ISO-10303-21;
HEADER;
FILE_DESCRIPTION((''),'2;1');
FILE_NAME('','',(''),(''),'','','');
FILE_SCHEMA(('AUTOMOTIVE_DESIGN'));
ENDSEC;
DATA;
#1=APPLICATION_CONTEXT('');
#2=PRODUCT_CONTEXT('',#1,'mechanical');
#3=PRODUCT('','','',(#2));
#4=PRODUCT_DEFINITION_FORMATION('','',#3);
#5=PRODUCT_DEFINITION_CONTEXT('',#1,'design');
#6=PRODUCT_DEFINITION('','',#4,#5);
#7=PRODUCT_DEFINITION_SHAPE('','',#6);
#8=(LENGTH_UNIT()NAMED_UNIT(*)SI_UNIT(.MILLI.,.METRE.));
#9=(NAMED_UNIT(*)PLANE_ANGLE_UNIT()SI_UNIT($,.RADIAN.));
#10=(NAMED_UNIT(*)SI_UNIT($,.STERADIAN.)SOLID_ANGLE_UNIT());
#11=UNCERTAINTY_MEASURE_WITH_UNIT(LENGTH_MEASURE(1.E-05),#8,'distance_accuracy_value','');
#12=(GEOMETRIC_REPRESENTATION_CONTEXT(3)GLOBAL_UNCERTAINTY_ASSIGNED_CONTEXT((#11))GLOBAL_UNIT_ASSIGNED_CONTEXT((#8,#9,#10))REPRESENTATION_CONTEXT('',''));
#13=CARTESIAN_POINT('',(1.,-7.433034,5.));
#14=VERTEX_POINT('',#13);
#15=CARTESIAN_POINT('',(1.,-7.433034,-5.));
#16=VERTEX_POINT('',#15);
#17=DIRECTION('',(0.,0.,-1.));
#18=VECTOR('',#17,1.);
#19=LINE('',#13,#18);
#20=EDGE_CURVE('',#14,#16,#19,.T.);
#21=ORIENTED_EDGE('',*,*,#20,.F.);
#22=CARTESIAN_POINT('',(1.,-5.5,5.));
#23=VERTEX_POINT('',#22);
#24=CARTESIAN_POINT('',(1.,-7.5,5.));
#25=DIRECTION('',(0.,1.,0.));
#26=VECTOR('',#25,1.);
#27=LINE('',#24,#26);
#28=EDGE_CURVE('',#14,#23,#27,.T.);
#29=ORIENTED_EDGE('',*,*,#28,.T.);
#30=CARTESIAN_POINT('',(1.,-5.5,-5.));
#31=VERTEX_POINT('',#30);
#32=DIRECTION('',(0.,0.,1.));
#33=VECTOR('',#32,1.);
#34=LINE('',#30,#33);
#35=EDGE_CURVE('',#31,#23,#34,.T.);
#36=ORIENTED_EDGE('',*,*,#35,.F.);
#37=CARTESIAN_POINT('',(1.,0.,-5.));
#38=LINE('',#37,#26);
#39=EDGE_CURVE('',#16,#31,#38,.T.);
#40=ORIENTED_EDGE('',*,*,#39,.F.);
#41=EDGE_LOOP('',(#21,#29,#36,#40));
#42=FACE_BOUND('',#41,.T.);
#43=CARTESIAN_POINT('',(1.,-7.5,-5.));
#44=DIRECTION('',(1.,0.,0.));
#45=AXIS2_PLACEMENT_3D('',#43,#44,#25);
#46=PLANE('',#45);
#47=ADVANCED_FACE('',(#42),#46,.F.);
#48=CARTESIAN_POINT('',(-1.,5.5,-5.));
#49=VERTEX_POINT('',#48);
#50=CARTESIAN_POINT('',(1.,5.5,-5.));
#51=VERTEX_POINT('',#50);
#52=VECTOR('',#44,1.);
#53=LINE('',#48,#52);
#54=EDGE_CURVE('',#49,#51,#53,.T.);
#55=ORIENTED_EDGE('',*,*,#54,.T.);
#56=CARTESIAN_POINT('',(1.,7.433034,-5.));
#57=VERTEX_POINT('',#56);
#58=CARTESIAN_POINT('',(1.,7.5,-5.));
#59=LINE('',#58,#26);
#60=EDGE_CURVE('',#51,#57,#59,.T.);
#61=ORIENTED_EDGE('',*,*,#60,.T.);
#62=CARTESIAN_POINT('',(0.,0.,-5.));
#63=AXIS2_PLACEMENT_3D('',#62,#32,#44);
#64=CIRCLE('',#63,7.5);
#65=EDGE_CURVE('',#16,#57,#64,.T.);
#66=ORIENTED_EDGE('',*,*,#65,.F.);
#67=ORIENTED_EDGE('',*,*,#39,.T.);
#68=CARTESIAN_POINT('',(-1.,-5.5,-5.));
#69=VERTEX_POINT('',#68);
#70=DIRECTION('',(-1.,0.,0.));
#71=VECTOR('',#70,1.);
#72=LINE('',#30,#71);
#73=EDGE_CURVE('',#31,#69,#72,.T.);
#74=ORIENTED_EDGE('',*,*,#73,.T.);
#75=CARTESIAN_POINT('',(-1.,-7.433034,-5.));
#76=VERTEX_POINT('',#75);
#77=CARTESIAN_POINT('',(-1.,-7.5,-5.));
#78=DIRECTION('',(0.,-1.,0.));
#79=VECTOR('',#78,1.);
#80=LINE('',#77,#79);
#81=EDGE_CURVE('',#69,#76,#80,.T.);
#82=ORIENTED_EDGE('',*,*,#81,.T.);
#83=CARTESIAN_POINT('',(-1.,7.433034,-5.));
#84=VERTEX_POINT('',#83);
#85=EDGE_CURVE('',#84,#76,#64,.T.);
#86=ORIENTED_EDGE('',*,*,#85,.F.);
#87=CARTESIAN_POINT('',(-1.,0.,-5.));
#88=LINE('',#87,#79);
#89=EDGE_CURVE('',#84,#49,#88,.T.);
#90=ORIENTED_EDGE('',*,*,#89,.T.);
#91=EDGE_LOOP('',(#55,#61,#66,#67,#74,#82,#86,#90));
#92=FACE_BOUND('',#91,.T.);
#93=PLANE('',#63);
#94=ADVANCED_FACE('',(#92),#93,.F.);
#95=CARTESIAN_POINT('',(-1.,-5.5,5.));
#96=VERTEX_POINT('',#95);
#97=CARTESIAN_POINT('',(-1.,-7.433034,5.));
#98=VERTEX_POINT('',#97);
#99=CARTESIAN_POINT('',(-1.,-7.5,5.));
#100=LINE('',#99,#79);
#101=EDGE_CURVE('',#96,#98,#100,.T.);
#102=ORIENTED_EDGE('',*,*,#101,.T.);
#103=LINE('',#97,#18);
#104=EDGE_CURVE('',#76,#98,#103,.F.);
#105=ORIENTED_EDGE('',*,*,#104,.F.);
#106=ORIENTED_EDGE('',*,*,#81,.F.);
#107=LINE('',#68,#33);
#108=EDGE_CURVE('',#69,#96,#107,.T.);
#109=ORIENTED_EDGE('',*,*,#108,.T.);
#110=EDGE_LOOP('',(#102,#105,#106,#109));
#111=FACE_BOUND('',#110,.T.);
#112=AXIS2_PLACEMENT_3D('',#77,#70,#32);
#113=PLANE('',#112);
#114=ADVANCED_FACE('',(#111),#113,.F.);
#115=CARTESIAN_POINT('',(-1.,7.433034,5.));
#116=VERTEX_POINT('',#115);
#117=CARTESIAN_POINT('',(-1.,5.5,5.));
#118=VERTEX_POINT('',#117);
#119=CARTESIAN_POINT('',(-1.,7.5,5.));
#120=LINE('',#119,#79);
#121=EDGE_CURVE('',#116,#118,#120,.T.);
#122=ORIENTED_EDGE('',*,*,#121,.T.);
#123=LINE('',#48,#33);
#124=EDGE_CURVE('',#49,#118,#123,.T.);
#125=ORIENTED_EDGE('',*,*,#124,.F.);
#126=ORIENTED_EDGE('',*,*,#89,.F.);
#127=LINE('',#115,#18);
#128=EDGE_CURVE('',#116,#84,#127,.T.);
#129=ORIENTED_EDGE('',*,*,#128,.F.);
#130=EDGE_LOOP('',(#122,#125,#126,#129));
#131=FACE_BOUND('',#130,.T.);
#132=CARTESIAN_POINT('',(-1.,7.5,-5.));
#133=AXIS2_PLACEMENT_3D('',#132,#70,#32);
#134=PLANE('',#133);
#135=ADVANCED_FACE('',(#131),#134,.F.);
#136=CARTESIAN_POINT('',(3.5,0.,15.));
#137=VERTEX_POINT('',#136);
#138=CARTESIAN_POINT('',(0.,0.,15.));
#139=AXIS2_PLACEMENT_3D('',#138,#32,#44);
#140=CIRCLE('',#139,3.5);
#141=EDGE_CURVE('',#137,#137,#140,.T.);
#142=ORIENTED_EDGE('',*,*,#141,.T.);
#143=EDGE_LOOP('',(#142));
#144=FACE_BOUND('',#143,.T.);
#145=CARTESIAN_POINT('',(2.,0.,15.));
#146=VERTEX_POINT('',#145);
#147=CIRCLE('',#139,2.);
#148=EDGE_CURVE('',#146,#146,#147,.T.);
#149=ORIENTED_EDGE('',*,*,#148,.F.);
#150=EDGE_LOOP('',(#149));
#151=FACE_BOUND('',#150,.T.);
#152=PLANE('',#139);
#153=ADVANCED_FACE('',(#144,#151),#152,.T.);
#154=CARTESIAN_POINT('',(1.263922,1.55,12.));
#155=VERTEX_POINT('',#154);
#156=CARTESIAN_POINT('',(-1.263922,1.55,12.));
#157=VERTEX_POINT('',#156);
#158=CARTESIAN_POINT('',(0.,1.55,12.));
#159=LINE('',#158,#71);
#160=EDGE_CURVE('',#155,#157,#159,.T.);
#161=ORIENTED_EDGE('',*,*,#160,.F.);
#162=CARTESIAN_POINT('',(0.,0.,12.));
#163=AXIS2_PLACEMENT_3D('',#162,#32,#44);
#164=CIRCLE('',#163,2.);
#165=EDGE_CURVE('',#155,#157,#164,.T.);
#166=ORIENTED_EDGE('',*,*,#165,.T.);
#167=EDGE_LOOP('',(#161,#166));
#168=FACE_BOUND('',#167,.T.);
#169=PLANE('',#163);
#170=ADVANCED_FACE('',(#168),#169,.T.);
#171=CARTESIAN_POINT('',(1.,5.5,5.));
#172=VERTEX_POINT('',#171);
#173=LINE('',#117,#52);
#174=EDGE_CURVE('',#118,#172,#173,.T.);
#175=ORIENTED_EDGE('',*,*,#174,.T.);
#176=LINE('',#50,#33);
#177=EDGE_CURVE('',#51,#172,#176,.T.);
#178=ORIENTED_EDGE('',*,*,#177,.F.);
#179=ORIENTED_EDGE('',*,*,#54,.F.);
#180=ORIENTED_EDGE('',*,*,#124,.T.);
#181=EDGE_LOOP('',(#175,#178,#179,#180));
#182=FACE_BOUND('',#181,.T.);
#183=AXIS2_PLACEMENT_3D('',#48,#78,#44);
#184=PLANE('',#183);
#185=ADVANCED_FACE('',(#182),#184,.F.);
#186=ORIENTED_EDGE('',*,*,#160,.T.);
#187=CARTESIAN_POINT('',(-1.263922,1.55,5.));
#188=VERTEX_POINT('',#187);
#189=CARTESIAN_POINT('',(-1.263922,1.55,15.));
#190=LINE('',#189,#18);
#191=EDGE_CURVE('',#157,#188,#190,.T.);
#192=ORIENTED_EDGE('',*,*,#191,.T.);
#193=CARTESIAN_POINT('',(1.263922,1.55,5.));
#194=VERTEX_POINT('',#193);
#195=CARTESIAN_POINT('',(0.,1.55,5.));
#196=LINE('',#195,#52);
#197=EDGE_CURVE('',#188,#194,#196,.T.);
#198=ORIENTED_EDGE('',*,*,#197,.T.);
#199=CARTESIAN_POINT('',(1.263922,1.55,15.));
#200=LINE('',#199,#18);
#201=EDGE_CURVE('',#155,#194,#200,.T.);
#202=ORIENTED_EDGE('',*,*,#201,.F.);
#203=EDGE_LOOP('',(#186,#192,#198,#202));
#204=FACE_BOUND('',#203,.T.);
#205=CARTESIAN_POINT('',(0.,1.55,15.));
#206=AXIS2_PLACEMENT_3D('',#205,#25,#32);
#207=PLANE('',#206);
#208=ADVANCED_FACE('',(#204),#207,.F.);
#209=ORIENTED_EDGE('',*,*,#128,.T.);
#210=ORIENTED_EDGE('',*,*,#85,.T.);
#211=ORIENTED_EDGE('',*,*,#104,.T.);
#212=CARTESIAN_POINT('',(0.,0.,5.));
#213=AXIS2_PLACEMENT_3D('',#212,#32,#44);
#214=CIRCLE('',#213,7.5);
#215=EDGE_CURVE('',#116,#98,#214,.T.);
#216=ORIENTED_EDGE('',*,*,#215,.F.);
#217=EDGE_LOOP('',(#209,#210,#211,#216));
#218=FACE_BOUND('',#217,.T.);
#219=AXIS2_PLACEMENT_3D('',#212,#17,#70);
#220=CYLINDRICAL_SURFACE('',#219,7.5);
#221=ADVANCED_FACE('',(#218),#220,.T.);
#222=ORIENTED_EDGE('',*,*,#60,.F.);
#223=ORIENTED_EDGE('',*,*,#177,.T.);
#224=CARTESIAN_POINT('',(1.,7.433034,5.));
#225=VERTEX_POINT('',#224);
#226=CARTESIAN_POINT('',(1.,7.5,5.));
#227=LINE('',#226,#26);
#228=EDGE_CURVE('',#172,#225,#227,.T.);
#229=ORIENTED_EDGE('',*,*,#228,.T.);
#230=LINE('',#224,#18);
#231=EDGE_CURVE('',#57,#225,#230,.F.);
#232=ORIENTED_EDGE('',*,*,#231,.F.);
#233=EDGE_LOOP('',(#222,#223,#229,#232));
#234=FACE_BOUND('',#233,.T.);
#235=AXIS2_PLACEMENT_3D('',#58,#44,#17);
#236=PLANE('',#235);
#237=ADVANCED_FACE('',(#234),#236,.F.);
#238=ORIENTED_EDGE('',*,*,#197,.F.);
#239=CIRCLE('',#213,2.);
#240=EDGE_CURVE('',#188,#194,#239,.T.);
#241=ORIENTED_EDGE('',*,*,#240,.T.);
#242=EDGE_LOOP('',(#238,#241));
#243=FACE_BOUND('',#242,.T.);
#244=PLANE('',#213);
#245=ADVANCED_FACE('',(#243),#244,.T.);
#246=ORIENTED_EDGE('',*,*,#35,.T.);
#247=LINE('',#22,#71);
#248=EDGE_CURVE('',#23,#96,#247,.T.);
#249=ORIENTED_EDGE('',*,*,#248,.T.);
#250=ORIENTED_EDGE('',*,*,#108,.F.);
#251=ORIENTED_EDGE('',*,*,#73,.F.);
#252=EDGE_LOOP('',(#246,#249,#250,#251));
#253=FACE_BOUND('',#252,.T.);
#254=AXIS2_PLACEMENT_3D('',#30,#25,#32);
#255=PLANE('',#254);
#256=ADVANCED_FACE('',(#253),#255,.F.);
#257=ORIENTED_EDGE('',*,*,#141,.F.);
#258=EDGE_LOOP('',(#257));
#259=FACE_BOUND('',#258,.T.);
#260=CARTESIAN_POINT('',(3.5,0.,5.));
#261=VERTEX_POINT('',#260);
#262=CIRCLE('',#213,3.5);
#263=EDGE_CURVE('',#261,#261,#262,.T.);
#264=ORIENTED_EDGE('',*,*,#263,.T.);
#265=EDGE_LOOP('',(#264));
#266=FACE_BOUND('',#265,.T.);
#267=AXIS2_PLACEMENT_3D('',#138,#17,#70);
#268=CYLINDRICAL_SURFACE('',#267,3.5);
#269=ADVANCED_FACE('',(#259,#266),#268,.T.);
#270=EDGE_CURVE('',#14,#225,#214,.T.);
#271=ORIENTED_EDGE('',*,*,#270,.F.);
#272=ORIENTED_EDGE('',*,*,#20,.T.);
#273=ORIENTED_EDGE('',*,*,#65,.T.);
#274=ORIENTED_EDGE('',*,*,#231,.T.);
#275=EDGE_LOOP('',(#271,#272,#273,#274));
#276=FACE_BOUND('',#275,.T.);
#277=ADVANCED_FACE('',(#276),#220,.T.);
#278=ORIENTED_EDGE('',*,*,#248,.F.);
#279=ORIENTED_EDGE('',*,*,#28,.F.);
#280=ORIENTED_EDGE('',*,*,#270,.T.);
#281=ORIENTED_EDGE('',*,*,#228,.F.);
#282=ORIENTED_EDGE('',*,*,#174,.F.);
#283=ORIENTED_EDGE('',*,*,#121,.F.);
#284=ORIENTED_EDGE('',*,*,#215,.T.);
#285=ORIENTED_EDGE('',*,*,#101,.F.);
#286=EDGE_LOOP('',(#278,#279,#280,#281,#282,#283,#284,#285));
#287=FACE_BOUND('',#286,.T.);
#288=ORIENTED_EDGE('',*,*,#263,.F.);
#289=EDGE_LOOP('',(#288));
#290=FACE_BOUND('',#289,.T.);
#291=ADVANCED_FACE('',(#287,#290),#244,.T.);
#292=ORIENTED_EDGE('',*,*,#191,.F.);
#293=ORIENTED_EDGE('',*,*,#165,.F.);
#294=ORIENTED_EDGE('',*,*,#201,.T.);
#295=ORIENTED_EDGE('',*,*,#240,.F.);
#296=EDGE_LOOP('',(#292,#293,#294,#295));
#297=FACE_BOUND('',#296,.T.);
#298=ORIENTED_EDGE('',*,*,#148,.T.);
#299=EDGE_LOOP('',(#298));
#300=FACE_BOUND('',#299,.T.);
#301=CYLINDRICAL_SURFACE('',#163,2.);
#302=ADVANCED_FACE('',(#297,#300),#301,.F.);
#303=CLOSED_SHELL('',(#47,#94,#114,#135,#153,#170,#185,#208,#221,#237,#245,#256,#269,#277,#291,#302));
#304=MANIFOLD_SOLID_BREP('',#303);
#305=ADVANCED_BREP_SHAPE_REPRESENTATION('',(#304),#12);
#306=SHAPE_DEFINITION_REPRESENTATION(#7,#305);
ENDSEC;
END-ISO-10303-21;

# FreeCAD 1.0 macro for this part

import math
import FreeCAD as App
import Part
import Sketcher
from FreeCAD import Vector
Q = App.Units.Quantity

doc = App.newDocument("Part")
body = doc.addObject("PartDesign::Body", "Body")

sketch1 = body.newObject("Sketcher::SketchObject", "Sketch")
sketch1.AttachmentSupport = (doc.getObject("XY_Plane"), [""])
sketch1.MapMode = "FlatFace"
sketch1.addGeometry(Part.Circle(Vector(0, 0, 0), Vector(0, 0, 1), 8), False)
sketch1.addConstraint(Sketcher.Constraint("Coincident", 0, 3, -1, 1))
sketch1.addConstraint(Sketcher.Constraint("Diameter", 0, Q("15 mm")))
pad1 = body.newObject("PartDesign::Pad", "Pad")
pad1.Profile = sketch1
pad1.Length = 10
pad1.Midplane = True

sketch2 = body.newObject("Sketcher::SketchObject", "Sketch001")
sketch2.AttachmentSupport = (doc.getObject("XY_Plane"), [""])
sketch2.MapMode = "FlatFace"
sketch2.AttachmentOffset = App.Placement(Vector(0, 0, 5), App.Rotation())
sketch2.addGeometry(Part.Circle(Vector(0, 0, 0), Vector(0, 0, 1), 3.5), False)
sketch2.addConstraint(Sketcher.Constraint("Coincident", 0, 3, -1, 1))
sketch2.addConstraint(Sketcher.Constraint("Diameter", 0, Q("7 mm")))
pad2 = body.newObject("PartDesign::Pad", "Pad001")
pad2.Profile = sketch2
pad2.Length = 10

sketch3 = body.newObject("Sketcher::SketchObject", "Sketch002")
sketch3.AttachmentSupport = (doc.getObject("XY_Plane"), [""])
sketch3.MapMode = "FlatFace"
sketch3.AttachmentOffset = App.Placement(Vector(0, 0, 15), App.Rotation())
sketch3.addGeometry(Part.Circle(Vector(0, 0, 0), Vector(0, 0, 1), 2), False)
sketch3.addConstraint(Sketcher.Constraint("Coincident", 0, 3, -1, 1))
sketch3.addConstraint(Sketcher.Constraint("Diameter", 0, Q("4 mm")))
pocket1 = body.newObject("PartDesign::Pocket", "Pocket")
pocket1.Profile = sketch3
pocket1.Length = 3

sketch4 = body.newObject("Sketcher::SketchObject", "Sketch003")
sketch4.AttachmentSupport = (doc.getObject("XY_Plane"), [""])
sketch4.MapMode = "FlatFace"
sketch4.AttachmentOffset = App.Placement(Vector(0, 0, 12), App.Rotation())
sketch4.addGeometry(Part.LineSegment(Vector(1.3, 1.6, 0), Vector(-1.3, 1.6, 0)), False)
sketch4.addGeometry(Part.ArcOfCircle(Part.Circle(Vector(0, 0, 0), Vector(0, 0, 1), 2), math.radians(129), math.radians(360)), False)
sketch4.addGeometry(Part.ArcOfCircle(Part.Circle(Vector(0, 0, 0), Vector(0, 0, 1), 2), math.radians(0), math.radians(51)), False)
sketch4.addConstraint(Sketcher.Constraint("Coincident", 0, 2, 1, 1))
sketch4.addConstraint(Sketcher.Constraint("Tangent", 1, 2, 2, 1))
sketch4.addConstraint(Sketcher.Constraint("Coincident", 2, 2, 0, 1))
sketch4.addConstraint(Sketcher.Constraint("Horizontal", 0))
sketch4.addConstraint(Sketcher.Constraint("Coincident", 1, 3, -1, 1))
sketch4.addConstraint(Sketcher.Constraint("Equal", 1, 2))
sketch4.addConstraint(Sketcher.Constraint("PointOnObject", 1, 2, -1))
sketch4.addConstraint(Sketcher.Constraint("Radius", 1, Q("2 mm")))
sketch4.addConstraint(Sketcher.Constraint("DistanceY", -1, 1, 0, 2, Q("1.55 mm")))
pocket2 = body.newObject("PartDesign::Pocket", "Pocket001")
pocket2.Profile = sketch4
pocket2.Type = "TwoLengths"
pocket2.Length = 21.037465
pocket2.Length2 = 7
pocket2.Reversed = True

sketch5 = body.newObject("Sketcher::SketchObject", "Sketch004")
sketch5.AttachmentSupport = (doc.getObject("XY_Plane"), [""])
sketch5.MapMode = "FlatFace"
sketch5.AttachmentOffset = App.Placement(Vector(0, 0, 5), App.Rotation())
sketch5.addGeometry(Part.LineSegment(Vector(-1, 7.5, 0), Vector(-1, 5.5, 0)), False)
sketch5.addGeometry(Part.LineSegment(Vector(-1, 5.5, 0), Vector(1, 5.5, 0)), False)
sketch5.addGeometry(Part.LineSegment(Vector(1, 5.5, 0), Vector(1, 7.5, 0)), False)
sketch5.addGeometry(Part.LineSegment(Vector(1, 7.5, 0), Vector(-1, 7.5, 0)), False)
sketch5.addGeometry(Part.LineSegment(Vector(-1, -5.5, 0), Vector(-1, -7.5, 0)), False)
sketch5.addGeometry(Part.LineSegment(Vector(-1, -7.5, 0), Vector(1, -7.5, 0)), False)
sketch5.addGeometry(Part.LineSegment(Vector(1, -7.5, 0), Vector(1, -5.5, 0)), False)
sketch5.addGeometry(Part.LineSegment(Vector(1, -5.5, 0), Vector(-1, -5.5, 0)), False)
sketch5.addConstraint(Sketcher.Constraint("Coincident", 0, 2, 1, 1))
sketch5.addConstraint(Sketcher.Constraint("Coincident", 1, 2, 2, 1))
sketch5.addConstraint(Sketcher.Constraint("Coincident", 2, 2, 3, 1))
sketch5.addConstraint(Sketcher.Constraint("Coincident", 3, 2, 0, 1))
sketch5.addConstraint(Sketcher.Constraint("Coincident", 4, 2, 5, 1))
sketch5.addConstraint(Sketcher.Constraint("Coincident", 5, 2, 6, 1))
sketch5.addConstraint(Sketcher.Constraint("Coincident", 6, 2, 7, 1))
sketch5.addConstraint(Sketcher.Constraint("Coincident", 7, 2, 4, 1))
sketch5.addConstraint(Sketcher.Constraint("Vertical", 0))
sketch5.addConstraint(Sketcher.Constraint("Horizontal", 1))
sketch5.addConstraint(Sketcher.Constraint("Vertical", 2))
sketch5.addConstraint(Sketcher.Constraint("Horizontal", 3))
sketch5.addConstraint(Sketcher.Constraint("Vertical", 4))
sketch5.addConstraint(Sketcher.Constraint("Horizontal", 5))
sketch5.addConstraint(Sketcher.Constraint("Vertical", 6))
sketch5.addConstraint(Sketcher.Constraint("Horizontal", 7))
sketch5.addConstraint(Sketcher.Constraint("Symmetric", 2, 2, 4, 2, -1, 1))
sketch5.addConstraint(Sketcher.Constraint("Symmetric", 0, 2, 6, 2, -1, 1))
sketch5.addConstraint(Sketcher.Constraint("Vertical", 3, 2, 4, 2))
sketch5.addConstraint(Sketcher.Constraint("Equal", 7, 0))
sketch5.addConstraint(Sketcher.Constraint("DistanceX", 1, 1, 1, 2, Q("2 mm")))
sketch5.addConstraint(Sketcher.Constraint("DistanceY", 4, 2, 0, 2, Q("13 mm")))
pocket3 = body.newObject("PartDesign::Pocket", "Pocket002")
pocket3.Profile = sketch5
pocket3.Length = 10

doc.recompute()
